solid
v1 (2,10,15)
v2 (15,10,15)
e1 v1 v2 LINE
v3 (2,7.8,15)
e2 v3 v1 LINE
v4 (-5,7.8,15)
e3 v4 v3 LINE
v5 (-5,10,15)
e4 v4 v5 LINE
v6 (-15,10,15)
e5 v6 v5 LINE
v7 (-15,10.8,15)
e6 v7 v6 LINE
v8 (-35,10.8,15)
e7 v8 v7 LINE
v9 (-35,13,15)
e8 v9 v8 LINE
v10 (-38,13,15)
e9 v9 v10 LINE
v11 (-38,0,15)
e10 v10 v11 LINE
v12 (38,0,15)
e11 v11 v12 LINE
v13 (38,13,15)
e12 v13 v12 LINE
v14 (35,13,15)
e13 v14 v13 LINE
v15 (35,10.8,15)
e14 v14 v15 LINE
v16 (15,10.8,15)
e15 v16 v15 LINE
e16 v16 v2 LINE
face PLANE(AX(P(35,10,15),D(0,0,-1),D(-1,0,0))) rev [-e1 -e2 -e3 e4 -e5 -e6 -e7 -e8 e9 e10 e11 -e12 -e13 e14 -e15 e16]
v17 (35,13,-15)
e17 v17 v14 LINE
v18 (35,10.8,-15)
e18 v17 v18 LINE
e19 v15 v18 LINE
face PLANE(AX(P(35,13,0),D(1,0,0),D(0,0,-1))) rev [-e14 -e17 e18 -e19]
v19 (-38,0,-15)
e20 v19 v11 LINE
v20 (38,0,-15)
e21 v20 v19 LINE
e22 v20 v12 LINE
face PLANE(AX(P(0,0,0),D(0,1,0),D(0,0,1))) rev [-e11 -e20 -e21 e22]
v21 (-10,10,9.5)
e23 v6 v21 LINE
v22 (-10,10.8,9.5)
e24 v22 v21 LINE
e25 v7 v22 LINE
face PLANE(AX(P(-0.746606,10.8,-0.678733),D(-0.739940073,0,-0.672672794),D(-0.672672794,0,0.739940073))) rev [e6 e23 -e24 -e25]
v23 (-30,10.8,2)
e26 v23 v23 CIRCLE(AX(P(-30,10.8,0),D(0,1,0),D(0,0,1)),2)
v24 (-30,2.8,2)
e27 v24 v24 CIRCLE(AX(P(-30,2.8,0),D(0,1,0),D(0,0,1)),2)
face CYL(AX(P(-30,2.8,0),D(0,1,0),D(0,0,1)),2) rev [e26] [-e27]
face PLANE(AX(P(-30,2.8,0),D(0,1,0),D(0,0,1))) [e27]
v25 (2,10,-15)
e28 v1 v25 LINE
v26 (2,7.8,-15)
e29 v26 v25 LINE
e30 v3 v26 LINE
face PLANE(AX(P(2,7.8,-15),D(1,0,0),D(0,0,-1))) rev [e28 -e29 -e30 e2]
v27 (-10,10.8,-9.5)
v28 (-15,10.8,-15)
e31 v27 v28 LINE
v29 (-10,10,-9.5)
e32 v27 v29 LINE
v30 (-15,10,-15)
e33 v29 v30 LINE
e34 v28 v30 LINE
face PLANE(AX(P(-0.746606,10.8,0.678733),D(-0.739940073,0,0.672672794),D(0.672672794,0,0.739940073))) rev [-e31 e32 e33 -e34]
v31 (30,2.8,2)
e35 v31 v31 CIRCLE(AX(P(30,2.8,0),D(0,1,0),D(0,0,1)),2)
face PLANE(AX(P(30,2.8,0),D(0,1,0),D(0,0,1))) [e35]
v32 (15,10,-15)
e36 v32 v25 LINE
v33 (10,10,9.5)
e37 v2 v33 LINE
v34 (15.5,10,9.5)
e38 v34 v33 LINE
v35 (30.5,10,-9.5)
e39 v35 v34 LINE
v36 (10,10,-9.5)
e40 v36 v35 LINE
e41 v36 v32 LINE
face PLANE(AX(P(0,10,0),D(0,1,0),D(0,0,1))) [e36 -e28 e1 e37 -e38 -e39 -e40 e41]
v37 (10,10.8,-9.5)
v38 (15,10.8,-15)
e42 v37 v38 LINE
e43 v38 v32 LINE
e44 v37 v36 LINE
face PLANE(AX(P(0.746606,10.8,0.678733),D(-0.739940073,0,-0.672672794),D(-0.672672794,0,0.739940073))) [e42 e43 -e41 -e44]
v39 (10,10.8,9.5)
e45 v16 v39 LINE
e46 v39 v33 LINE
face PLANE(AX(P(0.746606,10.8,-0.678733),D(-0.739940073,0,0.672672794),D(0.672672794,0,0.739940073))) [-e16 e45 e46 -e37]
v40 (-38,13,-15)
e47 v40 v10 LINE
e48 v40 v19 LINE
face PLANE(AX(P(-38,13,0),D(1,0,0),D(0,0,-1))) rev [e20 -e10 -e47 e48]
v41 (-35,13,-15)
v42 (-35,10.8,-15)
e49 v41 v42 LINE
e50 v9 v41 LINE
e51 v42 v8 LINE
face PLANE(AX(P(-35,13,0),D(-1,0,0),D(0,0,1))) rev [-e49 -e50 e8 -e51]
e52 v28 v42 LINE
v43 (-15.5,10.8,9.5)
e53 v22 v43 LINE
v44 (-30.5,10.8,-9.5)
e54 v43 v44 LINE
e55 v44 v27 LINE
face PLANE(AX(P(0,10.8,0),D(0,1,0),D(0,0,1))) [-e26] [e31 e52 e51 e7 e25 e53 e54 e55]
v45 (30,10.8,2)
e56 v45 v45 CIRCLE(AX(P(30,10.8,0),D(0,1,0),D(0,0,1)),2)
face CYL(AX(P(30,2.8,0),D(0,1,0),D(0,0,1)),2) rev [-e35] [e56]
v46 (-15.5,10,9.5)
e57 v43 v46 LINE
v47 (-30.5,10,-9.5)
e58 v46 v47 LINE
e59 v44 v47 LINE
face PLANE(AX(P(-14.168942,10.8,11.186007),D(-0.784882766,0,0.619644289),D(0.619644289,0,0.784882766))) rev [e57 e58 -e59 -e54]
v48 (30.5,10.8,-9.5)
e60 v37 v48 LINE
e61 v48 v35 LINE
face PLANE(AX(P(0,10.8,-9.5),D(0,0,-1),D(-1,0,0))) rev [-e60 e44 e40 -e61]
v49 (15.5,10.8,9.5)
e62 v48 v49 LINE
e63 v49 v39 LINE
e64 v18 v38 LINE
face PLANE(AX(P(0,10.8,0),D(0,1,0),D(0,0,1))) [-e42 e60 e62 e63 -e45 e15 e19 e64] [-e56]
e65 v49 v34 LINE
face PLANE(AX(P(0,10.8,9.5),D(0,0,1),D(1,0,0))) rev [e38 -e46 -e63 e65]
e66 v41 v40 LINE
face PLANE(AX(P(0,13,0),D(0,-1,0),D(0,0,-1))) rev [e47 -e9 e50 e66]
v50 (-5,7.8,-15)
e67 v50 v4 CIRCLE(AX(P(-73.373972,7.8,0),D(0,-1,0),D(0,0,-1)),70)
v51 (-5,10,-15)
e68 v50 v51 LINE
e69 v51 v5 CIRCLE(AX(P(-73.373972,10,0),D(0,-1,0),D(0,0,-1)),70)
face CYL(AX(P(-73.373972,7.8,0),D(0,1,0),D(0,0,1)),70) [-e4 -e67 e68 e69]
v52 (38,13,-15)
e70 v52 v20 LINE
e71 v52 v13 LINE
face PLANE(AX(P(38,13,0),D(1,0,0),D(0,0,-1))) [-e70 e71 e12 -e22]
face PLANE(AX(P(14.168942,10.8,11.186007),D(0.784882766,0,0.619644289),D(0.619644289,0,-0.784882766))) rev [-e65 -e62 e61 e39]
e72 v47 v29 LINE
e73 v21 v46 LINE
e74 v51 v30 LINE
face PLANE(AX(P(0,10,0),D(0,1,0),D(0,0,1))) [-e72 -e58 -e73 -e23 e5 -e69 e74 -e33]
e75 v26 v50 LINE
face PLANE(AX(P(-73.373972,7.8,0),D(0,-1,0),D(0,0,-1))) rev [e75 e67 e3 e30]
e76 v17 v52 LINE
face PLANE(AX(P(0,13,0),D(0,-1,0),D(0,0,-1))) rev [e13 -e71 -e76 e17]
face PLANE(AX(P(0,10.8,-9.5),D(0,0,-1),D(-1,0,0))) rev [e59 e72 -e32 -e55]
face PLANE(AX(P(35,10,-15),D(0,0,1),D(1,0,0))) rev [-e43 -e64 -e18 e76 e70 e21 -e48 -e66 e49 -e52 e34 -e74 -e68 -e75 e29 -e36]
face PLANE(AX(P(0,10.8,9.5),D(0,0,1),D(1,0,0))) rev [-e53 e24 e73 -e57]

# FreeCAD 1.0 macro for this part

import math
import FreeCAD as App
import Part
import Sketcher

V = App.Vector
Q = App.Units.Quantity

doc = App.newDocument("Part")
body = doc.addObject("PartDesign::Body", "Body")

# Sketch on XZ plane
sketch1 = body.newObject("Sketcher::SketchObject", "Sketch")
sketch1.AttachmentSupport = (doc.getObject("XZ_Plane"), [""])
sketch1.MapMode = "FlatFace"
sketch1.addGeometry([
    Part.LineSegment(V(-35, -15, 0), V(-35, 15, 0)),
    Part.LineSegment(V(-35, 15, 0), V(35, 15, 0)),
    Part.LineSegment(V(35, 15, 0), V(35, -15, 0)),
    Part.LineSegment(V(35, -15, 0), V(-35, -15, 0)),
], False)
sketch1.addConstraint([
    Sketcher.Constraint("Coincident", 0, 2, 1, 1),
    Sketcher.Constraint("Coincident", 1, 2, 2, 1),
    Sketcher.Constraint("Coincident", 2, 2, 3, 1),
    Sketcher.Constraint("Coincident", 3, 2, 0, 1),
    Sketcher.Constraint("Vertical", 0),
    Sketcher.Constraint("Horizontal", 1),
    Sketcher.Constraint("Vertical", 2),
    Sketcher.Constraint("Horizontal", 3),
    Sketcher.Constraint("Symmetric", 0, 2, 2, 2, -1, 1),
    Sketcher.Constraint("DistanceX", 1, 1, 1, 2, Q("70 mm")),
    Sketcher.Constraint("DistanceY", 0, 1, 0, 2, Q("30 mm")),
])
pad1 = body.newObject("PartDesign::Pad", "Pad")
pad1.Profile = sketch1
pad1.Length = 10
pad1.Reversed = True

# Sketch on XZ plane
sketch2 = body.newObject("Sketcher::SketchObject", "Sketch001")
sketch2.AttachmentSupport = (doc.getObject("XZ_Plane"), [""])
sketch2.MapMode = "FlatFace"
sketch2.AttachmentOffset = App.Placement(V(0, 0, -10), App.Rotation())
sketch2.addGeometry([
    Part.LineSegment(V(-16, 10, 0), V(-30, -10, 0)),  # 0
    Part.LineSegment(V(-30, -10, 0), V(-10, -10, 0)),  # 1
    Part.LineSegment(V(-10, -10, 0), V(-15, -15, 0)),  # 2
    Part.LineSegment(V(-15, -15, 0), V(-35, -15, 0)),  # 3
    Part.LineSegment(V(-35, -15, 0), V(-35, 15, 0)),  # 4
    Part.LineSegment(V(-35, 15, 0), V(-15, 15, 0)),  # 5
    Part.LineSegment(V(-15, 15, 0), V(-10, 10, 0)),  # 6
    Part.LineSegment(V(-10, 10, 0), V(-16, 10, 0)),  # 7
    Part.LineSegment(V(15, -15, 0), V(10, -10, 0)),  # 8
    Part.LineSegment(V(10, -10, 0), V(30, -10, 0)),  # 9
    Part.LineSegment(V(30, -10, 0), V(16, 10, 0)),  # 10
    Part.LineSegment(V(16, 10, 0), V(10, 10, 0)),  # 11
    Part.LineSegment(V(10, 10, 0), V(15, 15, 0)),  # 12
    Part.LineSegment(V(15, 15, 0), V(35, 15, 0)),  # 13
    Part.LineSegment(V(35, 15, 0), V(35, -15, 0)),  # 14
    Part.LineSegment(V(35, -15, 0), V(15, -15, 0)),  # 15
], False)
sketch2.addConstraint([
    Sketcher.Constraint("Coincident", 0, 2, 1, 1),
    Sketcher.Constraint("Coincident", 1, 2, 2, 1),
    Sketcher.Constraint("Coincident", 2, 2, 3, 1),
    Sketcher.Constraint("Coincident", 3, 2, 4, 1),
    Sketcher.Constraint("Coincident", 4, 2, 5, 1),
    Sketcher.Constraint("Coincident", 5, 2, 6, 1),
    Sketcher.Constraint("Coincident", 6, 2, 7, 1),
    Sketcher.Constraint("Coincident", 7, 2, 0, 1),
    Sketcher.Constraint("Coincident", 8, 2, 9, 1),
    Sketcher.Constraint("Coincident", 9, 2, 10, 1),
    Sketcher.Constraint("Coincident", 10, 2, 11, 1),
    Sketcher.Constraint("Coincident", 11, 2, 12, 1),
    Sketcher.Constraint("Coincident", 12, 2, 13, 1),
    Sketcher.Constraint("Coincident", 13, 2, 14, 1),
    Sketcher.Constraint("Coincident", 14, 2, 15, 1),
    Sketcher.Constraint("Coincident", 15, 2, 8, 1),
    Sketcher.Constraint("Horizontal", 1),
    Sketcher.Constraint("Horizontal", 3),
    Sketcher.Constraint("Vertical", 4),
    Sketcher.Constraint("Horizontal", 5),
    Sketcher.Constraint("Horizontal", 7),
    Sketcher.Constraint("Horizontal", 9),
    Sketcher.Constraint("Horizontal", 11),
    Sketcher.Constraint("Horizontal", 13),
    Sketcher.Constraint("Vertical", 14),
    Sketcher.Constraint("Horizontal", 15),
    Sketcher.Constraint("Symmetric", 6, 2, 8, 2, -1, 1),
    Sketcher.Constraint("Symmetric", 1, 2, 11, 2, -1, 1),
    Sketcher.Constraint("Symmetric", 2, 2, 12, 2, -1, 1),
    Sketcher.Constraint("Symmetric", 4, 2, 14, 2, -1, 1),
    Sketcher.Constraint("Symmetric", 1, 2, 8, 2, -2),
    Sketcher.Constraint("Symmetric", 5, 2, 12, 2, -2),
    Sketcher.Constraint("Parallel", 6, 8),
    Sketcher.Constraint("Equal", 1, 9),
    Sketcher.Constraint("Equal", 7, 11),
    Sketcher.Constraint("DistanceX", 3, 2, 3, 1, Q("20 mm")),
    Sketcher.Constraint("DistanceY", 4, 1, 4, 2, Q("30 mm")),
    Sketcher.Constraint("DistanceX", 1, 1, 1, 2, Q("20.5 mm")),
    Sketcher.Constraint("DistanceX", 7, 2, 7, 1, Q("5.5 mm")),
    Sketcher.Constraint("DistanceX", 1, 2, -1, 1, Q("10 mm")),
    Sketcher.Constraint("DistanceX", 2, 2, -1, 1, Q("15 mm")),
    Sketcher.Constraint("DistanceY", 1, 2, 6, 2, Q("19 mm")),
])
pad2 = body.newObject("PartDesign::Pad", "Pad001")
pad2.Profile = sketch2
pad2.Length = 0.8
pad2.Reversed = True

# Sketch on XZ plane
sketch3 = body.newObject("Sketcher::SketchObject", "Sketch002")
sketch3.AttachmentSupport = (doc.getObject("XZ_Plane"), [""])
sketch3.MapMode = "FlatFace"
sketch3.AttachmentOffset = App.Placement(V(0, 0, -10), App.Rotation())
sketch3.addGeometry([
    Part.LineSegment(V(2, 15, 0), V(2, -15, 0)),
    Part.LineSegment(V(2, -15, 0), V(-5, -15, 0)),
    Part.ArcOfCircle(Part.Circle(V(-73, 0, 0), V(0, 0, 1), 70), math.radians(-12), math.radians(12)),
    Part.LineSegment(V(-5, 15, 0), V(2, 15, 0)),
], False)
sketch3.addConstraint([
    Sketcher.Constraint("Coincident", 0, 2, 1, 1),
    Sketcher.Constraint("Coincident", 1, 2, 2, 1),
    Sketcher.Constraint("Coincident", 2, 2, 3, 1),
    Sketcher.Constraint("Coincident", 3, 2, 0, 1),
    Sketcher.Constraint("Vertical", 0),
    Sketcher.Constraint("Horizontal", 1),
    Sketcher.Constraint("Horizontal", 3),
    Sketcher.Constraint("Symmetric", 1, 2, 2, 2, -1),
    Sketcher.Constraint("Radius", 2, Q("70 mm")),
    Sketcher.Constraint("DistanceX", 1, 2, 1, 1, Q("7 mm")),
    Sketcher.Constraint("DistanceY", 0, 2, 0, 1, Q("30 mm")),
    Sketcher.Constraint("DistanceX", -1, 1, 0, 2, Q("2 mm")),
])
pocket1 = body.newObject("PartDesign::Pocket", "Pocket")
pocket1.Profile = sketch3
pocket1.Length = 2.2
pocket1.Reversed = True

# Sketch on XZ plane
sketch4 = body.newObject("Sketcher::SketchObject", "Sketch003")
sketch4.AttachmentSupport = (doc.getObject("XZ_Plane"), [""])
sketch4.MapMode = "FlatFace"
sketch4.AttachmentOffset = App.Placement(V(0, 0, -10.8), App.Rotation())
sketch4.addGeometry([
    Part.Circle(V(-30, 0, 0), V(0, 0, 1), 2),
    Part.Circle(V(30, 0, 0), V(0, 0, 1), 2),
], False)
sketch4.addConstraint([
    Sketcher.Constraint("Equal", 0, 1),
    Sketcher.Constraint("Symmetric", 0, 3, 1, 3, -1, 1),
    Sketcher.Constraint("PointOnObject", 0, 3, -1),
    Sketcher.Constraint("Diameter", 0, Q("4 mm")),
    Sketcher.Constraint("DistanceX", 0, 3, -1, 1, Q("30 mm")),
])
pocket2 = body.newObject("PartDesign::Pocket", "Pocket001")
pocket2.Profile = sketch4
pocket2.Length = 8
pocket2.Reversed = True

# Sketch on XZ plane
sketch5 = body.newObject("Sketcher::SketchObject", "Sketch004")
sketch5.AttachmentSupport = (doc.getObject("XZ_Plane"), [""])
sketch5.MapMode = "FlatFace"
sketch5.addGeometry([
    Part.LineSegment(V(-38, 15, 0), V(-38, -15, 0)),  # 0
    Part.LineSegment(V(-38, -15, 0), V(-35, -15, 0)),  # 1
    Part.LineSegment(V(-35, -15, 0), V(-35, 15, 0)),  # 2
    Part.LineSegment(V(-35, 15, 0), V(-38, 15, 0)),  # 3
    Part.LineSegment(V(35, 15, 0), V(35, -15, 0)),  # 4
    Part.LineSegment(V(35, -15, 0), V(38, -15, 0)),  # 5
    Part.LineSegment(V(38, -15, 0), V(38, 15, 0)),  # 6
    Part.LineSegment(V(38, 15, 0), V(35, 15, 0)),  # 7
], False)
sketch5.addConstraint([
    Sketcher.Constraint("Coincident", 0, 2, 1, 1),
    Sketcher.Constraint("Coincident", 1, 2, 2, 1),
    Sketcher.Constraint("Coincident", 2, 2, 3, 1),
    Sketcher.Constraint("Coincident", 3, 2, 0, 1),
    Sketcher.Constraint("Coincident", 4, 2, 5, 1),
    Sketcher.Constraint("Coincident", 5, 2, 6, 1),
    Sketcher.Constraint("Coincident", 6, 2, 7, 1),
    Sketcher.Constraint("Coincident", 7, 2, 4, 1),
    Sketcher.Constraint("Vertical", 0),
    Sketcher.Constraint("Horizontal", 1),
    Sketcher.Constraint("Vertical", 2),
    Sketcher.Constraint("Horizontal", 3),
    Sketcher.Constraint("Vertical", 4),
    Sketcher.Constraint("Horizontal", 5),
    Sketcher.Constraint("Vertical", 6),
    Sketcher.Constraint("Horizontal", 7),
    Sketcher.Constraint("Symmetric", 2, 2, 4, 2, -1, 1),
    Sketcher.Constraint("Symmetric", 0, 2, 6, 2, -1, 1),
    Sketcher.Constraint("Horizontal", 1, 2, 4, 2),
    Sketcher.Constraint("DistanceX", 1, 1, 1, 2, Q("3 mm")),
    Sketcher.Constraint("DistanceY", 0, 2, 0, 1, Q("30 mm")),
    Sketcher.Constraint("DistanceX", 0, 2, -1, 1, Q("38 mm")),
])
pad3 = body.newObject("PartDesign::Pad", "Pad002")
pad3.Profile = sketch5
pad3.Length = 13
pad3.Reversed = True

doc.recompute()
